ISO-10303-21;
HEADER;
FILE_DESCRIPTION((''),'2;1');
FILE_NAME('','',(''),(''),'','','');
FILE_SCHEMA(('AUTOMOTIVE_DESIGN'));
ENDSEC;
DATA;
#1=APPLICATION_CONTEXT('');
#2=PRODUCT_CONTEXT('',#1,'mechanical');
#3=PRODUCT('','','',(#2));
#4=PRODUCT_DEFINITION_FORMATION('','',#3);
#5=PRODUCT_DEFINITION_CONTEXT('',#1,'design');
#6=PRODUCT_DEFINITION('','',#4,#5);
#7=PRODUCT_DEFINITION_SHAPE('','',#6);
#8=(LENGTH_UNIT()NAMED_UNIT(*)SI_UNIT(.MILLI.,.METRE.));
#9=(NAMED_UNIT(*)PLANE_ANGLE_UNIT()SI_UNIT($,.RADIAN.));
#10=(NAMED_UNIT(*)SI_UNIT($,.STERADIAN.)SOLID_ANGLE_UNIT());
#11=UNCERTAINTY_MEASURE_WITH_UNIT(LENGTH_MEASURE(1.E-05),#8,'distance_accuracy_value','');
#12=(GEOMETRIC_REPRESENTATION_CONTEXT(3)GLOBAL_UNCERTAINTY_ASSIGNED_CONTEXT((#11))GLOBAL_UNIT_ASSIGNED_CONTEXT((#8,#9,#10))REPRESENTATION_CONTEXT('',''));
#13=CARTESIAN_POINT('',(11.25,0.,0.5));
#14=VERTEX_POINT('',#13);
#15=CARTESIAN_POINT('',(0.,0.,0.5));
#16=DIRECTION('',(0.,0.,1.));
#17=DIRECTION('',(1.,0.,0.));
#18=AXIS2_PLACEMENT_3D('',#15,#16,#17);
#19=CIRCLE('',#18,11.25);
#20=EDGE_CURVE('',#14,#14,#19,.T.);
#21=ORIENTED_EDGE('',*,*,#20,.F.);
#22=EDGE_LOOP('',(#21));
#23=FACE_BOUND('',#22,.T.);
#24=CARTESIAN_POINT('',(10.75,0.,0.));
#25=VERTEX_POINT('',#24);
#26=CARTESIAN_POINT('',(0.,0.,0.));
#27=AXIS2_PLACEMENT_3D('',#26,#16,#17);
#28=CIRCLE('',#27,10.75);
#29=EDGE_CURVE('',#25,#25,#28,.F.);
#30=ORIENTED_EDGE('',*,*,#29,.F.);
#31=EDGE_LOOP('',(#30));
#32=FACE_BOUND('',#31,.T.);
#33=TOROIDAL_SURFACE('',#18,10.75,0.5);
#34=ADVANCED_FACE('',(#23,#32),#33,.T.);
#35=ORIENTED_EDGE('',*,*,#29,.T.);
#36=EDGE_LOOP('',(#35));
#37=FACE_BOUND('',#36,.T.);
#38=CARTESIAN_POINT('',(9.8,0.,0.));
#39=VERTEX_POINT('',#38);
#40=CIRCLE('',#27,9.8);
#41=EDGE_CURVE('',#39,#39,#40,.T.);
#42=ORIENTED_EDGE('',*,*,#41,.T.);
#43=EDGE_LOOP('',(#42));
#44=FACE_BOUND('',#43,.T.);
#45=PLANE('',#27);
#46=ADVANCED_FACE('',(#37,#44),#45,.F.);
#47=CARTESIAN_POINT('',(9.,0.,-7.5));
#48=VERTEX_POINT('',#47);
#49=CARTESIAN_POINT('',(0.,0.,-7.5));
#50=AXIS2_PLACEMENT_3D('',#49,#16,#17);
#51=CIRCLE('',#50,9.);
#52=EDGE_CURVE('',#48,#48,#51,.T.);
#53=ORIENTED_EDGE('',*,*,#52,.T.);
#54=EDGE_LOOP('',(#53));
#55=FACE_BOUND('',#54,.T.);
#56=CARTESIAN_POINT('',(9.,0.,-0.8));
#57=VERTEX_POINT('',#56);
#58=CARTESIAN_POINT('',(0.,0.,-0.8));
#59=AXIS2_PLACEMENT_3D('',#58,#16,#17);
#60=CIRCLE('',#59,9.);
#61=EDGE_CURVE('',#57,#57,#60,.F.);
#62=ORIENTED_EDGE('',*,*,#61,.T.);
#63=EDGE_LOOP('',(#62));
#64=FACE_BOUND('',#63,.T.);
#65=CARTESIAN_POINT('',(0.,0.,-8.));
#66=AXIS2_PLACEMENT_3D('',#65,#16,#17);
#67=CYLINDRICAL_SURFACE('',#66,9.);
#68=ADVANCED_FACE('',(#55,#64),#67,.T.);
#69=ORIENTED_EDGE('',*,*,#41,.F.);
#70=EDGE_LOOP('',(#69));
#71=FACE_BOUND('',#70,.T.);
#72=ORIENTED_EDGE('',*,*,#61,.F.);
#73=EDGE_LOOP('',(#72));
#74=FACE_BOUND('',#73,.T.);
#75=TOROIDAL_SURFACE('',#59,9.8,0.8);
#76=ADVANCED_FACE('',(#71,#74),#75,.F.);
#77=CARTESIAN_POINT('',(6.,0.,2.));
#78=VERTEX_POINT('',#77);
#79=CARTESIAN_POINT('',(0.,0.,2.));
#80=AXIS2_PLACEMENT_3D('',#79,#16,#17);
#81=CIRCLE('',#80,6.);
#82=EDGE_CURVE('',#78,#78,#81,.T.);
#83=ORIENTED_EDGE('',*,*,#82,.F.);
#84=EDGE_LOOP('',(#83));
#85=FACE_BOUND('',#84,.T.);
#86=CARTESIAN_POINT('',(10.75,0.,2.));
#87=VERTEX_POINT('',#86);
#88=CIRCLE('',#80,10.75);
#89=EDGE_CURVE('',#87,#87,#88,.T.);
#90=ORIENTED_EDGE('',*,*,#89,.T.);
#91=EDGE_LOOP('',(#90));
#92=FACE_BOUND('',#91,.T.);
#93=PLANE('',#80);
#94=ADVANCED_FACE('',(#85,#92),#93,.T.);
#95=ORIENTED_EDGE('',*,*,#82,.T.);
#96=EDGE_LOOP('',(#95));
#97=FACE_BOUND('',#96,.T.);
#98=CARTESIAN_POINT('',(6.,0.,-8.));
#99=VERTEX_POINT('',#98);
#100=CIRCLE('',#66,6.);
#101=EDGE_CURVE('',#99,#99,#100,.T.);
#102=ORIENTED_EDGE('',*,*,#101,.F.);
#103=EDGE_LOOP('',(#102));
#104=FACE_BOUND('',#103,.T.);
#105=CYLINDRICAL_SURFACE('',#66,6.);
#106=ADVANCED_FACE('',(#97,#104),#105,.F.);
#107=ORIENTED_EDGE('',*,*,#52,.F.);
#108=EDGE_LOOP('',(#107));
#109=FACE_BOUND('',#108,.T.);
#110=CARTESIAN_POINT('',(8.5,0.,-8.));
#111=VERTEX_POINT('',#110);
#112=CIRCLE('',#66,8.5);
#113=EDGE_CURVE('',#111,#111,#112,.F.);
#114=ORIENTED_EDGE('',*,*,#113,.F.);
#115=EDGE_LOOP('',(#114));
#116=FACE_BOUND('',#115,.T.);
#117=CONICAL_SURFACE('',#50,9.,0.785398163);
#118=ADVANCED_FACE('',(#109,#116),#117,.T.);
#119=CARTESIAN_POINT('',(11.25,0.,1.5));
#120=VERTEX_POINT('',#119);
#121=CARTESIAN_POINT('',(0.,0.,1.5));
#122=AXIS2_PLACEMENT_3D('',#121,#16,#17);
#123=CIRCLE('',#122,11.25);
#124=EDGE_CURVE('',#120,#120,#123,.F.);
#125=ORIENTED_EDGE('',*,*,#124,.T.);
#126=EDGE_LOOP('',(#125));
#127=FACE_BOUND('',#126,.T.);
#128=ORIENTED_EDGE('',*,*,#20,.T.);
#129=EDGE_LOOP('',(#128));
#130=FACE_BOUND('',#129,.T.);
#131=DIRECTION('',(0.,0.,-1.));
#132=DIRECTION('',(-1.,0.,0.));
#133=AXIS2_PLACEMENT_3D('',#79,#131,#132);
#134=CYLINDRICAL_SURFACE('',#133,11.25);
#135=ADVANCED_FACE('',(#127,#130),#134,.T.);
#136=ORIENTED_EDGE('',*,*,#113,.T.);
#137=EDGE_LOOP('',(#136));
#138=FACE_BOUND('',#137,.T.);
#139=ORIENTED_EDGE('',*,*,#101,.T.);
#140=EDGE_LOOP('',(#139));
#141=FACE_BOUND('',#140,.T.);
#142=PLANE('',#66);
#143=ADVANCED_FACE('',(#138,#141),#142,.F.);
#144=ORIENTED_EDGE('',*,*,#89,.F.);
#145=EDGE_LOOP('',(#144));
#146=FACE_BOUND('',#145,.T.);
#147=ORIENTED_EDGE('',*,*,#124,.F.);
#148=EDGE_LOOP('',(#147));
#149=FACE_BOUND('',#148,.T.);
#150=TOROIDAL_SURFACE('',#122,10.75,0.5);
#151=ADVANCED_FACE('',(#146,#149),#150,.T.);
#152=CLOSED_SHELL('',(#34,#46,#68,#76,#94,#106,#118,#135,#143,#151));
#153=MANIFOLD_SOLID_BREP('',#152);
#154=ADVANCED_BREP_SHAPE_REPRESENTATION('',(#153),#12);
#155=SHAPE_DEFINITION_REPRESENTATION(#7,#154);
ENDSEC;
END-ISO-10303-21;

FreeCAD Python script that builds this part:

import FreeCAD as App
import Part
import Sketcher
Q = App.Units.Quantity


def edges_at(feature, points):
    """Names of the edges that pass closest to the given points."""
    edges = feature.Shape.Edges
    near = lambda p: min(range(len(edges)), key=lambda i: edges[i].distToShape(Part.Vertex(*p))[0])
    return sorted({f"Edge{near(p) + 1}" for p in points})

doc = App.newDocument("Part")
params = doc.addObject("Spreadsheet::Sheet", "Params")
for row, (alias, value) in enumerate([
    ("sketch1_diameter", "18 mm"),
    ("sketch1_diameter2", "12 mm"),
    ("pad1_length", "8 mm"),
    ("sketch2_diameter", "12 mm"),
    ("sketch2_diameter2", "22.5 mm"),
    ("pad2_length", "2 mm"),
    ("fillet_radius", "0.5 mm"),
    ("fillet2_radius", "0.5 mm"),
    ("fillet3_radius", "0.8 mm"),
    ("chamfer_size", "0.5 mm"),
], start=1):
    params.set(f"A{row}", alias)
    params.set(f"B{row}", "=" + value)
    params.setAlias(f"B{row}", alias)

body = doc.addObject("PartDesign::Body", "Body")

# Sketch on XY plane
sketch1 = body.newObject("Sketcher::SketchObject", "Sketch")
sketch1.AttachmentSupport = (doc.getObject("XY_Plane"), [""])
sketch1.MapMode = "FlatFace"
sketch1.addGeometry([
    Part.Circle(App.Vector(0, 0, 0), App.Vector(0, 0, 1), 9),
    Part.Circle(App.Vector(0, 0, 0), App.Vector(0, 0, 1), 6),
], False)
sketch1.addConstraint([
    Sketcher.Constraint("Coincident", 0, 3, -1, 1),
    Sketcher.Constraint("Coincident", 1, 3, -1, 1),
    Sketcher.Constraint("Diameter", 0, Q("18 mm")),
    Sketcher.Constraint("Diameter", 1, Q("12 mm")),
])
sketch1.setExpression("Constraints[2]", "Params.sketch1_diameter")
sketch1.setExpression("Constraints[3]", "Params.sketch1_diameter2")
pad1 = body.newObject("PartDesign::Pad", "Pad")
pad1.Profile = sketch1
pad1.setExpression("Length", "Params.pad1_length")
pad1.Reversed = True

# Sketch on XY plane
sketch2 = body.newObject("Sketcher::SketchObject", "Sketch001")
sketch2.AttachmentSupport = (doc.getObject("XY_Plane"), [""])
sketch2.MapMode = "FlatFace"
sketch2.AttachmentOffset = App.Placement(App.Vector(0, 0, 2), App.Rotation())
sketch2.addGeometry([
    Part.Circle(App.Vector(0, 0, 0), App.Vector(0, 0, 1), 11.25),
    Part.Circle(App.Vector(0, 0, 0), App.Vector(0, 0, 1), 6),
], False)
sketch2.addConstraint([
    Sketcher.Constraint("Coincident", 0, 3, -1, 1),
    Sketcher.Constraint("Coincident", 1, 3, -1, 1),
    Sketcher.Constraint("Diameter", 1, Q("12 mm")),
    Sketcher.Constraint("Diameter", 0, Q("22.5 mm")),
])
sketch2.setExpression("Constraints[2]", "Params.sketch2_diameter")
sketch2.setExpression("Constraints[3]", "Params.sketch2_diameter2")
pad2 = body.newObject("PartDesign::Pad", "Pad001")
pad2.Profile = sketch2
pad2.setExpression("Length", "Params.pad2_length")
pad2.Reversed = True
doc.recompute()

fillet = body.newObject("PartDesign::Fillet", "Fillet")
fillet.Base = (pad2, edges_at(pad2, [(-11.25, 0, 2)]))
fillet.setExpression("Radius", "Params.fillet_radius")
doc.recompute()

fillet2 = body.newObject("PartDesign::Fillet", "Fillet001")
fillet2.Base = (fillet, edges_at(fillet, [(-11.25, 0, 0)]))
fillet2.setExpression("Radius", "Params.fillet2_radius")
doc.recompute()

fillet3 = body.newObject("PartDesign::Fillet", "Fillet002")
fillet3.Base = (fillet2, edges_at(fillet2, [(-9, 0, 0)]))
fillet3.setExpression("Radius", "Params.fillet3_radius")
doc.recompute()

chamfer = body.newObject("PartDesign::Chamfer", "Chamfer")
chamfer.Base = (fillet3, edges_at(fillet3, [(-9, 0, -8)]))
chamfer.setExpression("Size", "Params.chamfer_size")

doc.recompute()
